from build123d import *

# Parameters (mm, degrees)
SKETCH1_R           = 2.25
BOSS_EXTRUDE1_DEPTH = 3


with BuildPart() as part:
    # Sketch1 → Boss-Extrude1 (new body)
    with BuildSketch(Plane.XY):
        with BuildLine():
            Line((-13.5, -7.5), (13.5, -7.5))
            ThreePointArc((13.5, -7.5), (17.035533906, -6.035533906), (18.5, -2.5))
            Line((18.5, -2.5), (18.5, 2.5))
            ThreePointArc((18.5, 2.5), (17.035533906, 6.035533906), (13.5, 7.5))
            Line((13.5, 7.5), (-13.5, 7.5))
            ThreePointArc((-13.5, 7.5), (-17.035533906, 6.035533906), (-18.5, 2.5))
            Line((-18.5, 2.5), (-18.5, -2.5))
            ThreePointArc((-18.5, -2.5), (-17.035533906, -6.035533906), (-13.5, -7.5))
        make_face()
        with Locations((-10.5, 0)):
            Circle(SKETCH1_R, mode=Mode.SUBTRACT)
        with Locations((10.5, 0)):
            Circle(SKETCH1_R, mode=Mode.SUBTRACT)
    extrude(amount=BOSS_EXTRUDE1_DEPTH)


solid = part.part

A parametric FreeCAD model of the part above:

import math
import FreeCAD as App
import Part
import Sketcher
from FreeCAD import Vector
Q = App.Units.Quantity

doc = App.newDocument("Part")
body = doc.addObject("PartDesign::Body", "Body")

# Sketch on XY plane
sketch1 = doc.addObject("Sketcher::SketchObject", "Sketch")
body.addObject(sketch1)
sketch1.AttachmentSupport = (doc.XY_Plane, [""])
sketch1.MapMode = "FlatFace"
sketch1.addGeometry([
    Part.LineSegment(Vector(-13.5, -7.5, 0), Vector(13.5, -7.5, 0)),  # 0
    Part.ArcOfCircle(Part.Circle(Vector(13.5, -2.5, 0), Vector(0, 0, 1), 5), math.radians(-90), math.radians(0)),  # 1
    Part.LineSegment(Vector(18.5, -2.5, 0), Vector(18.5, 2.5, 0)),  # 2
    Part.ArcOfCircle(Part.Circle(Vector(13.5, 2.5, 0), Vector(0, 0, 1), 5), math.radians(0), math.radians(90)),  # 3
    Part.LineSegment(Vector(13.5, 7.5, 0), Vector(-13.5, 7.5, 0)),  # 4
    Part.ArcOfCircle(Part.Circle(Vector(-13.5, 2.5, 0), Vector(0, 0, 1), 5), math.radians(90), math.radians(180)),  # 5
    Part.LineSegment(Vector(-18.5, 2.5, 0), Vector(-18.5, -2.5, 0)),  # 6
    Part.ArcOfCircle(Part.Circle(Vector(-13.5, -2.5, 0), Vector(0, 0, 1), 5), math.radians(180), math.radians(270)),  # 7
    Part.Circle(Vector(-10.5, 0, 0), Vector(0, 0, 1), 2.2),  # 8
    Part.Circle(Vector(10.5, 0, 0), Vector(0, 0, 1), 2.2),  # 9
], False)
sketch1.addConstraint([
    Sketcher.Constraint("Tangent", 0, 2, 1, 1),
    Sketcher.Constraint("Tangent", 1, 2, 2, 1),
    Sketcher.Constraint("Tangent", 2, 2, 3, 1),
    Sketcher.Constraint("Tangent", 3, 2, 4, 1),
    Sketcher.Constraint("Tangent", 4, 2, 5, 1),
    Sketcher.Constraint("Tangent", 5, 2, 6, 1),
    Sketcher.Constraint("Tangent", 6, 2, 7, 1),
    Sketcher.Constraint("Tangent", 7, 2, 0, 1),
    Sketcher.Constraint("Horizontal", 0),
    Sketcher.Constraint("Vertical", 2),
    Sketcher.Constraint("Horizontal", 4),
    Sketcher.Constraint("Vertical", 6),
    Sketcher.Constraint("Equal", 1, 3),
    Sketcher.Constraint("Equal", 3, 5),
    Sketcher.Constraint("Equal", 5, 7),
    Sketcher.Constraint("Equal", 8, 9),
    Sketcher.Constraint("Symmetric", 1, 3, 5, 3, -1, 1),
    Sketcher.Constraint("Symmetric", 8, 3, 9, 3, -1, 1),
    Sketcher.Constraint("PointOnObject", 8, 3, -1),
    Sketcher.Constraint("Radius", 1, Q("5 mm")),
    Sketcher.Constraint("Diameter", 8, Q("4.5 mm")),
    Sketcher.Constraint("DistanceX", 0, 1, 0, 2, Q("27 mm")),
    Sketcher.Constraint("DistanceY", 2, 1, 2, 2, Q("5 mm")),
    Sketcher.Constraint("DistanceX", 5, 3, 8, 3, Q("3 mm")),
])
pad1 = doc.addObject("PartDesign::Pad", "Pad")
body.addObject(pad1)
pad1.Profile = sketch1
pad1.Length = 3

doc.recompute()
